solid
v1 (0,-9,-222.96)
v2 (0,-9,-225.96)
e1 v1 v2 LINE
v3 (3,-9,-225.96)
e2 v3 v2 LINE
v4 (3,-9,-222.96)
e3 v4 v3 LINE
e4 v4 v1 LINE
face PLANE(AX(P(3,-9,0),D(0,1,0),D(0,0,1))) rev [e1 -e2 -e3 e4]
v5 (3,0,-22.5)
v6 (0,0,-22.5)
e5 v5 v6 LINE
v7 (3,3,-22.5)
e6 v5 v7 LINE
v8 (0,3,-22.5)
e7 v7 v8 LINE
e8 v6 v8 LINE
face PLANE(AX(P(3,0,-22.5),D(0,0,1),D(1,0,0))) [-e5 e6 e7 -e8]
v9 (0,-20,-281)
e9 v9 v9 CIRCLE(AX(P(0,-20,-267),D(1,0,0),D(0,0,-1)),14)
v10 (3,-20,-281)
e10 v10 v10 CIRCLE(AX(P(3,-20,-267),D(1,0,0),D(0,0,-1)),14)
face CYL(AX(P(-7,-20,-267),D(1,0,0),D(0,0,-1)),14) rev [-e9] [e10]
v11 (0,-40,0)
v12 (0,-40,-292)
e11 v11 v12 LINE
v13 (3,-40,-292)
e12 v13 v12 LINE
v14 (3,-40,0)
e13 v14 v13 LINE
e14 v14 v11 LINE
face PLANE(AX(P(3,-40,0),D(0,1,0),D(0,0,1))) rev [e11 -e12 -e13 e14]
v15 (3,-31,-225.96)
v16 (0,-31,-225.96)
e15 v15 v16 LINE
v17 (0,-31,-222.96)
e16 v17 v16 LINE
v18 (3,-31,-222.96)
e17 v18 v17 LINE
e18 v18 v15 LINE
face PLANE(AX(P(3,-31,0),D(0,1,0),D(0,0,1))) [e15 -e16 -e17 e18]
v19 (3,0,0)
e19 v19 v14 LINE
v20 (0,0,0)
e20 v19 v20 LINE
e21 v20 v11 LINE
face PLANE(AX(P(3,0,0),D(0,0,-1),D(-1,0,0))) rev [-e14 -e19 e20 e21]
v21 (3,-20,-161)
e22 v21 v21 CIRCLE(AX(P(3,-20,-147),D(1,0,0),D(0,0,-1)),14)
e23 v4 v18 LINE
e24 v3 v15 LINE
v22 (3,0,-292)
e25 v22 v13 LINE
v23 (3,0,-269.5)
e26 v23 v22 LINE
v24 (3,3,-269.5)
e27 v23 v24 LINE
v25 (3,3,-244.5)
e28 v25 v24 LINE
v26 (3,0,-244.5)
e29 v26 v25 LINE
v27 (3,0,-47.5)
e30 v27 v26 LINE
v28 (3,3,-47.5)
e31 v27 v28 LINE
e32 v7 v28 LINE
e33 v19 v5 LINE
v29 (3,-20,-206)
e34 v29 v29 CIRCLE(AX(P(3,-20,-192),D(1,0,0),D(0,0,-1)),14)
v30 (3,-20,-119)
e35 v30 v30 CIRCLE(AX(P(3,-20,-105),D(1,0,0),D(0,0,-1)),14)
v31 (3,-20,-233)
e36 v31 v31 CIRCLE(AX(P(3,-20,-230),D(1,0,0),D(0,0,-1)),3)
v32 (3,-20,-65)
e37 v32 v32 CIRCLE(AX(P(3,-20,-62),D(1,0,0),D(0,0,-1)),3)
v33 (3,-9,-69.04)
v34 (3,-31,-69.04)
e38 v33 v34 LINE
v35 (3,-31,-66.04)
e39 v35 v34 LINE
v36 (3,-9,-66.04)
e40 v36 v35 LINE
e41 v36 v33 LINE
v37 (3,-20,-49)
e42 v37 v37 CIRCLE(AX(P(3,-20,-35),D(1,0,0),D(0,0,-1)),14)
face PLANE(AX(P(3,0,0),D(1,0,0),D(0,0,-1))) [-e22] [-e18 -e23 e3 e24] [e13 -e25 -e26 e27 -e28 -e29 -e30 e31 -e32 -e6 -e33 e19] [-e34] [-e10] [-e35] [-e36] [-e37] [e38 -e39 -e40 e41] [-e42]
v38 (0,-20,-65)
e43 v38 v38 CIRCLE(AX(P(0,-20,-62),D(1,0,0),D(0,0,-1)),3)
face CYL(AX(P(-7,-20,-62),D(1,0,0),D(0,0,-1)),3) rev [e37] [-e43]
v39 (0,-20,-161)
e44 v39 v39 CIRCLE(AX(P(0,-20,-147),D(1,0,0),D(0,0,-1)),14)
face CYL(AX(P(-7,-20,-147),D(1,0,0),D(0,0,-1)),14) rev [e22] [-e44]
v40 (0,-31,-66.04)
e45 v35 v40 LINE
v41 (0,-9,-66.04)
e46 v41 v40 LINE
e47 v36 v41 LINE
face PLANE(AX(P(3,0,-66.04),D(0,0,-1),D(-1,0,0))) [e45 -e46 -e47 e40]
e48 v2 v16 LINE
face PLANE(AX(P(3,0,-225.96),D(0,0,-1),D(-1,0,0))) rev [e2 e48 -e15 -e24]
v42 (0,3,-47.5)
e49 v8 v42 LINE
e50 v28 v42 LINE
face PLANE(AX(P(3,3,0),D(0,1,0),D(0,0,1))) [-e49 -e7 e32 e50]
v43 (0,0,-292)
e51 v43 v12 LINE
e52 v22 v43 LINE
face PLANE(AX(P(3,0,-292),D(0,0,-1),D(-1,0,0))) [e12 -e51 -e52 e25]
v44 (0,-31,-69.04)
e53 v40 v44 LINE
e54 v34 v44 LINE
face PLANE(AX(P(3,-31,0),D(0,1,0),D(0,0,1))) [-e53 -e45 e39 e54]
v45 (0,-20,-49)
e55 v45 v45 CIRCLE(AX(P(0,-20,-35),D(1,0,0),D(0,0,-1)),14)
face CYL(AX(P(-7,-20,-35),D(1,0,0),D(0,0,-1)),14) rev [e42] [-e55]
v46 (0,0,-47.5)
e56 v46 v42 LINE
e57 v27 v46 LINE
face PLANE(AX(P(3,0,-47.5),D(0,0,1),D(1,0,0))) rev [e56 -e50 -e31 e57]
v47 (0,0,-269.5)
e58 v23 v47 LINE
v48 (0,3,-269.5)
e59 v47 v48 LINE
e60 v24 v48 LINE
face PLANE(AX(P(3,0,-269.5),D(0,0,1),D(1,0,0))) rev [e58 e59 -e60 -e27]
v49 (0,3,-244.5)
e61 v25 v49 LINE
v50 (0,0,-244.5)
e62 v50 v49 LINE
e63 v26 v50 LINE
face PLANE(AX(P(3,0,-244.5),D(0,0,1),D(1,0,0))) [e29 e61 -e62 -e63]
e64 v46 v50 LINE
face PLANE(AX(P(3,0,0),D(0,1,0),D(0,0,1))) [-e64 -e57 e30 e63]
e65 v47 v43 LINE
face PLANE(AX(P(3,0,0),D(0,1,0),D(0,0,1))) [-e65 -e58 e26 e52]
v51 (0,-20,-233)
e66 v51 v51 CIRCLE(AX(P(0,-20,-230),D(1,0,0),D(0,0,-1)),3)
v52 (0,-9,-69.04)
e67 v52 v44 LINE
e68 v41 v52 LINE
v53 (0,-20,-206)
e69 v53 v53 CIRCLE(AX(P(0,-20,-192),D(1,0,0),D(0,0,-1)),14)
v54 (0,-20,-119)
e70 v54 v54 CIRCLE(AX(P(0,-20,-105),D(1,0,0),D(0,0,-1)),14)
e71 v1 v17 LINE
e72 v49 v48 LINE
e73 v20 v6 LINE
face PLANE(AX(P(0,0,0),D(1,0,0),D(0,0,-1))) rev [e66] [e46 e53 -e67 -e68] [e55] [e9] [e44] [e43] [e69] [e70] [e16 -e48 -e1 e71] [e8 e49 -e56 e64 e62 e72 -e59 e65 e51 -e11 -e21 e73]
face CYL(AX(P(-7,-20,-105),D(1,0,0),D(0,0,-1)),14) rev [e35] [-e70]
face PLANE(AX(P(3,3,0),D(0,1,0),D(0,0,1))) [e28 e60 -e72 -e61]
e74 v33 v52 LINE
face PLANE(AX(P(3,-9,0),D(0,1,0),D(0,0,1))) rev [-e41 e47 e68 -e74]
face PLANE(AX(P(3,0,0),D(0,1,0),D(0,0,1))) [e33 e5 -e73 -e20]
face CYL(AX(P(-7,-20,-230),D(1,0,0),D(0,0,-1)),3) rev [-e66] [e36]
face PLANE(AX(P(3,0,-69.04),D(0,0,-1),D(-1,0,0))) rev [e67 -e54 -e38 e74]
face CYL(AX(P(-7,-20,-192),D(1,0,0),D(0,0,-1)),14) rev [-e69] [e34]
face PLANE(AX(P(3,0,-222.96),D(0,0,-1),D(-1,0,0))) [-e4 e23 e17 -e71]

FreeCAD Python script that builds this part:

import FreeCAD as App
import Part
import Sketcher

V = App.Vector
Q = App.Units.Quantity


def add_polygon(sketch, points):
    """Adds a closed chain of lines whose ends are joined by coincident constraints."""
    first, n = sketch.GeometryCount, len(points)
    for a, b in zip(points, points[1:] + points[:1]):
        sketch.addGeometry(Part.LineSegment(App.Vector(*a, 0), App.Vector(*b, 0)), False)
    for i in range(n):
        sketch.addConstraint(Sketcher.Constraint("Coincident", first + i, 2, first + (i + 1) % n, 1))

doc = App.newDocument("Part")
body = doc.addObject("PartDesign::Body", "Body")

# Sketch on YZ plane
sketch1 = body.newObject("Sketcher::SketchObject", "Sketch")
sketch1.AttachmentSupport = (doc.getObject("YZ_Plane"), [""])
sketch1.MapMode = "FlatFace"
add_polygon(sketch1, [(0, 0), (-40, 0), (-40, -292), (0, -292), (0, -269.5), (3, -269.5), (3, -244.5), (0, -244.5), (0, -47.5), (3, -47.5), (3, -22.5), (0, -22.5)])  # lines 0-11
add_polygon(sketch1, [(-31, -69.04), (-31, -66.04), (-9, -66.04), (-9, -69.04)])  # lines 12-15
add_polygon(sketch1, [(-31, -225.96), (-31, -222.96), (-9, -222.96), (-9, -225.96)])  # lines 16-19
sketch1.addConstraint(Sketcher.Constraint("Horizontal", 0))
sketch1.addConstraint(Sketcher.Constraint("Vertical", 1))
sketch1.addConstraint(Sketcher.Constraint("Horizontal", 2))
sketch1.addConstraint(Sketcher.Constraint("Vertical", 3))
sketch1.addConstraint(Sketcher.Constraint("Horizontal", 4))
sketch1.addConstraint(Sketcher.Constraint("Vertical", 5))
sketch1.addConstraint(Sketcher.Constraint("Horizontal", 6))
sketch1.addConstraint(Sketcher.Constraint("Vertical", 7))
sketch1.addConstraint(Sketcher.Constraint("Horizontal", 8))
sketch1.addConstraint(Sketcher.Constraint("Vertical", 9))
sketch1.addConstraint(Sketcher.Constraint("Horizontal", 10))
sketch1.addConstraint(Sketcher.Constraint("Vertical", 11))
sketch1.addConstraint(Sketcher.Constraint("Vertical", 12))
sketch1.addConstraint(Sketcher.Constraint("Horizontal", 13))
sketch1.addConstraint(Sketcher.Constraint("Vertical", 14))
sketch1.addConstraint(Sketcher.Constraint("Horizontal", 15))
sketch1.addConstraint(Sketcher.Constraint("Vertical", 16))
sketch1.addConstraint(Sketcher.Constraint("Horizontal", 17))
sketch1.addConstraint(Sketcher.Constraint("Vertical", 18))
sketch1.addConstraint(Sketcher.Constraint("Horizontal", 19))
sketch1.addConstraint(Sketcher.Constraint("Coincident", 11, 2, -1, 1))
sketch1.addConstraint(Sketcher.Constraint("PointOnObject", 2, 2, -2))
sketch1.addConstraint(Sketcher.Constraint("PointOnObject", 6, 2, -2))
sketch1.addConstraint(Sketcher.Constraint("Vertical", 5, 2, 8, 2))
sketch1.addConstraint(Sketcher.Constraint("Vertical", 15, 2, 16, 2))
sketch1.addConstraint(Sketcher.Constraint("Vertical", 14, 2, 17, 2))
sketch1.addConstraint(Sketcher.Constraint("Equal", 5, 9))
sketch1.addConstraint(Sketcher.Constraint("Equal", 3, 11))
sketch1.addConstraint(Sketcher.Constraint("Equal", 10, 12))
sketch1.addConstraint(Sketcher.Constraint("Equal", 14, 16))
sketch1.addConstraint(Sketcher.Constraint("DistanceX", 0, 2, 0, 1, Q("40 mm")))
sketch1.addConstraint(Sketcher.Constraint("DistanceX", 4, 1, 4, 2, Q("3 mm")))
sketch1.addConstraint(Sketcher.Constraint("DistanceX", 13, 1, 13, 2, Q("22 mm")))
sketch1.addConstraint(Sketcher.Constraint("DistanceY", 1, 2, 1, 1, Q("292 mm")))
sketch1.addConstraint(Sketcher.Constraint("DistanceY", 5, 1, 5, 2, Q("25 mm")))
sketch1.addConstraint(Sketcher.Constraint("DistanceY", 7, 1, 7, 2, Q("197 mm")))
sketch1.addConstraint(Sketcher.Constraint("DistanceX", 12, 2, -1, 1, Q("31 mm")))
sketch1.addConstraint(Sketcher.Constraint("DistanceY", 12, 2, -1, 1, Q("66.04 mm")))
sketch1.addConstraint(Sketcher.Constraint("DistanceY", 16, 2, -1, 1, Q("222.96 mm")))
pad1 = body.newObject("PartDesign::Pad", "Pad")
pad1.Profile = sketch1
pad1.Length = 3

# Sketch on YZ plane
sketch2 = body.newObject("Sketcher::SketchObject", "Sketch001")
sketch2.AttachmentSupport = (doc.getObject("YZ_Plane"), [""])
sketch2.MapMode = "FlatFace"
sketch2.AttachmentOffset = App.Placement(V(0, 0, 3), App.Rotation())
sketch2.addGeometry(Part.Circle(V(-20, -35, 0), V(0, 0, 1), 14), False)
sketch2.addGeometry(Part.Circle(V(-20, -105, 0), V(0, 0, 1), 14), False)
sketch2.addGeometry(Part.Circle(V(-20, -147, 0), V(0, 0, 1), 14), False)
sketch2.addGeometry(Part.Circle(V(-20, -192, 0), V(0, 0, 1), 14), False)
sketch2.addGeometry(Part.Circle(V(-20, -267, 0), V(0, 0, 1), 14), False)
sketch2.addConstraint(Sketcher.Constraint("Equal", 0, 1))
sketch2.addConstraint(Sketcher.Constraint("Equal", 1, 2))
sketch2.addConstraint(Sketcher.Constraint("Equal", 2, 3))
sketch2.addConstraint(Sketcher.Constraint("Equal", 3, 4))
sketch2.addConstraint(Sketcher.Constraint("Vertical", 0, 3, 1, 3))
sketch2.addConstraint(Sketcher.Constraint("Vertical", 1, 3, 2, 3))
sketch2.addConstraint(Sketcher.Constraint("Vertical", 2, 3, 3, 3))
sketch2.addConstraint(Sketcher.Constraint("Vertical", 3, 3, 4, 3))
sketch2.addConstraint(Sketcher.Constraint("Diameter", 0, Q("28 mm")))
sketch2.addConstraint(Sketcher.Constraint("DistanceX", 0, 3, -1, 1, Q("20 mm")))
sketch2.addConstraint(Sketcher.Constraint("DistanceY", 0, 3, -1, 1, Q("35 mm")))
sketch2.addConstraint(Sketcher.Constraint("DistanceY", 1, 3, -1, 1, Q("105 mm")))
sketch2.addConstraint(Sketcher.Constraint("DistanceY", 2, 3, -1, 1, Q("147 mm")))
sketch2.addConstraint(Sketcher.Constraint("DistanceY", 3, 3, -1, 1, Q("192 mm")))
sketch2.addConstraint(Sketcher.Constraint("DistanceY", 4, 3, -1, 1, Q("267 mm")))
pocket1 = body.newObject("PartDesign::Pocket", "Pocket")
pocket1.Profile = sketch2
pocket1.Length = 10

# Sketch on YZ plane
sketch3 = body.newObject("Sketcher::SketchObject", "Sketch002")
sketch3.AttachmentSupport = (doc.getObject("YZ_Plane"), [""])
sketch3.MapMode = "FlatFace"
sketch3.AttachmentOffset = App.Placement(V(0, 0, 3), App.Rotation())
sketch3.addGeometry(Part.Circle(V(-20, -62, 0), V(0, 0, 1), 3), False)
sketch3.addGeometry(Part.Circle(V(-20, -230, 0), V(0, 0, 1), 3), False)
sketch3.addConstraint(Sketcher.Constraint("Equal", 0, 1))
sketch3.addConstraint(Sketcher.Constraint("Vertical", 0, 3, 1, 3))
sketch3.addConstraint(Sketcher.Constraint("Diameter", 0, Q("6 mm")))
sketch3.addConstraint(Sketcher.Constraint("DistanceX", 0, 3, -1, 1, Q("20 mm")))
sketch3.addConstraint(Sketcher.Constraint("DistanceY", 0, 3, -1, 1, Q("62 mm")))
sketch3.addConstraint(Sketcher.Constraint("DistanceY", 1, 3, -1, 1, Q("230 mm")))
pocket2 = body.newObject("PartDesign::Pocket", "Pocket001")
pocket2.Profile = sketch3
pocket2.Length = 10

doc.recompute()
